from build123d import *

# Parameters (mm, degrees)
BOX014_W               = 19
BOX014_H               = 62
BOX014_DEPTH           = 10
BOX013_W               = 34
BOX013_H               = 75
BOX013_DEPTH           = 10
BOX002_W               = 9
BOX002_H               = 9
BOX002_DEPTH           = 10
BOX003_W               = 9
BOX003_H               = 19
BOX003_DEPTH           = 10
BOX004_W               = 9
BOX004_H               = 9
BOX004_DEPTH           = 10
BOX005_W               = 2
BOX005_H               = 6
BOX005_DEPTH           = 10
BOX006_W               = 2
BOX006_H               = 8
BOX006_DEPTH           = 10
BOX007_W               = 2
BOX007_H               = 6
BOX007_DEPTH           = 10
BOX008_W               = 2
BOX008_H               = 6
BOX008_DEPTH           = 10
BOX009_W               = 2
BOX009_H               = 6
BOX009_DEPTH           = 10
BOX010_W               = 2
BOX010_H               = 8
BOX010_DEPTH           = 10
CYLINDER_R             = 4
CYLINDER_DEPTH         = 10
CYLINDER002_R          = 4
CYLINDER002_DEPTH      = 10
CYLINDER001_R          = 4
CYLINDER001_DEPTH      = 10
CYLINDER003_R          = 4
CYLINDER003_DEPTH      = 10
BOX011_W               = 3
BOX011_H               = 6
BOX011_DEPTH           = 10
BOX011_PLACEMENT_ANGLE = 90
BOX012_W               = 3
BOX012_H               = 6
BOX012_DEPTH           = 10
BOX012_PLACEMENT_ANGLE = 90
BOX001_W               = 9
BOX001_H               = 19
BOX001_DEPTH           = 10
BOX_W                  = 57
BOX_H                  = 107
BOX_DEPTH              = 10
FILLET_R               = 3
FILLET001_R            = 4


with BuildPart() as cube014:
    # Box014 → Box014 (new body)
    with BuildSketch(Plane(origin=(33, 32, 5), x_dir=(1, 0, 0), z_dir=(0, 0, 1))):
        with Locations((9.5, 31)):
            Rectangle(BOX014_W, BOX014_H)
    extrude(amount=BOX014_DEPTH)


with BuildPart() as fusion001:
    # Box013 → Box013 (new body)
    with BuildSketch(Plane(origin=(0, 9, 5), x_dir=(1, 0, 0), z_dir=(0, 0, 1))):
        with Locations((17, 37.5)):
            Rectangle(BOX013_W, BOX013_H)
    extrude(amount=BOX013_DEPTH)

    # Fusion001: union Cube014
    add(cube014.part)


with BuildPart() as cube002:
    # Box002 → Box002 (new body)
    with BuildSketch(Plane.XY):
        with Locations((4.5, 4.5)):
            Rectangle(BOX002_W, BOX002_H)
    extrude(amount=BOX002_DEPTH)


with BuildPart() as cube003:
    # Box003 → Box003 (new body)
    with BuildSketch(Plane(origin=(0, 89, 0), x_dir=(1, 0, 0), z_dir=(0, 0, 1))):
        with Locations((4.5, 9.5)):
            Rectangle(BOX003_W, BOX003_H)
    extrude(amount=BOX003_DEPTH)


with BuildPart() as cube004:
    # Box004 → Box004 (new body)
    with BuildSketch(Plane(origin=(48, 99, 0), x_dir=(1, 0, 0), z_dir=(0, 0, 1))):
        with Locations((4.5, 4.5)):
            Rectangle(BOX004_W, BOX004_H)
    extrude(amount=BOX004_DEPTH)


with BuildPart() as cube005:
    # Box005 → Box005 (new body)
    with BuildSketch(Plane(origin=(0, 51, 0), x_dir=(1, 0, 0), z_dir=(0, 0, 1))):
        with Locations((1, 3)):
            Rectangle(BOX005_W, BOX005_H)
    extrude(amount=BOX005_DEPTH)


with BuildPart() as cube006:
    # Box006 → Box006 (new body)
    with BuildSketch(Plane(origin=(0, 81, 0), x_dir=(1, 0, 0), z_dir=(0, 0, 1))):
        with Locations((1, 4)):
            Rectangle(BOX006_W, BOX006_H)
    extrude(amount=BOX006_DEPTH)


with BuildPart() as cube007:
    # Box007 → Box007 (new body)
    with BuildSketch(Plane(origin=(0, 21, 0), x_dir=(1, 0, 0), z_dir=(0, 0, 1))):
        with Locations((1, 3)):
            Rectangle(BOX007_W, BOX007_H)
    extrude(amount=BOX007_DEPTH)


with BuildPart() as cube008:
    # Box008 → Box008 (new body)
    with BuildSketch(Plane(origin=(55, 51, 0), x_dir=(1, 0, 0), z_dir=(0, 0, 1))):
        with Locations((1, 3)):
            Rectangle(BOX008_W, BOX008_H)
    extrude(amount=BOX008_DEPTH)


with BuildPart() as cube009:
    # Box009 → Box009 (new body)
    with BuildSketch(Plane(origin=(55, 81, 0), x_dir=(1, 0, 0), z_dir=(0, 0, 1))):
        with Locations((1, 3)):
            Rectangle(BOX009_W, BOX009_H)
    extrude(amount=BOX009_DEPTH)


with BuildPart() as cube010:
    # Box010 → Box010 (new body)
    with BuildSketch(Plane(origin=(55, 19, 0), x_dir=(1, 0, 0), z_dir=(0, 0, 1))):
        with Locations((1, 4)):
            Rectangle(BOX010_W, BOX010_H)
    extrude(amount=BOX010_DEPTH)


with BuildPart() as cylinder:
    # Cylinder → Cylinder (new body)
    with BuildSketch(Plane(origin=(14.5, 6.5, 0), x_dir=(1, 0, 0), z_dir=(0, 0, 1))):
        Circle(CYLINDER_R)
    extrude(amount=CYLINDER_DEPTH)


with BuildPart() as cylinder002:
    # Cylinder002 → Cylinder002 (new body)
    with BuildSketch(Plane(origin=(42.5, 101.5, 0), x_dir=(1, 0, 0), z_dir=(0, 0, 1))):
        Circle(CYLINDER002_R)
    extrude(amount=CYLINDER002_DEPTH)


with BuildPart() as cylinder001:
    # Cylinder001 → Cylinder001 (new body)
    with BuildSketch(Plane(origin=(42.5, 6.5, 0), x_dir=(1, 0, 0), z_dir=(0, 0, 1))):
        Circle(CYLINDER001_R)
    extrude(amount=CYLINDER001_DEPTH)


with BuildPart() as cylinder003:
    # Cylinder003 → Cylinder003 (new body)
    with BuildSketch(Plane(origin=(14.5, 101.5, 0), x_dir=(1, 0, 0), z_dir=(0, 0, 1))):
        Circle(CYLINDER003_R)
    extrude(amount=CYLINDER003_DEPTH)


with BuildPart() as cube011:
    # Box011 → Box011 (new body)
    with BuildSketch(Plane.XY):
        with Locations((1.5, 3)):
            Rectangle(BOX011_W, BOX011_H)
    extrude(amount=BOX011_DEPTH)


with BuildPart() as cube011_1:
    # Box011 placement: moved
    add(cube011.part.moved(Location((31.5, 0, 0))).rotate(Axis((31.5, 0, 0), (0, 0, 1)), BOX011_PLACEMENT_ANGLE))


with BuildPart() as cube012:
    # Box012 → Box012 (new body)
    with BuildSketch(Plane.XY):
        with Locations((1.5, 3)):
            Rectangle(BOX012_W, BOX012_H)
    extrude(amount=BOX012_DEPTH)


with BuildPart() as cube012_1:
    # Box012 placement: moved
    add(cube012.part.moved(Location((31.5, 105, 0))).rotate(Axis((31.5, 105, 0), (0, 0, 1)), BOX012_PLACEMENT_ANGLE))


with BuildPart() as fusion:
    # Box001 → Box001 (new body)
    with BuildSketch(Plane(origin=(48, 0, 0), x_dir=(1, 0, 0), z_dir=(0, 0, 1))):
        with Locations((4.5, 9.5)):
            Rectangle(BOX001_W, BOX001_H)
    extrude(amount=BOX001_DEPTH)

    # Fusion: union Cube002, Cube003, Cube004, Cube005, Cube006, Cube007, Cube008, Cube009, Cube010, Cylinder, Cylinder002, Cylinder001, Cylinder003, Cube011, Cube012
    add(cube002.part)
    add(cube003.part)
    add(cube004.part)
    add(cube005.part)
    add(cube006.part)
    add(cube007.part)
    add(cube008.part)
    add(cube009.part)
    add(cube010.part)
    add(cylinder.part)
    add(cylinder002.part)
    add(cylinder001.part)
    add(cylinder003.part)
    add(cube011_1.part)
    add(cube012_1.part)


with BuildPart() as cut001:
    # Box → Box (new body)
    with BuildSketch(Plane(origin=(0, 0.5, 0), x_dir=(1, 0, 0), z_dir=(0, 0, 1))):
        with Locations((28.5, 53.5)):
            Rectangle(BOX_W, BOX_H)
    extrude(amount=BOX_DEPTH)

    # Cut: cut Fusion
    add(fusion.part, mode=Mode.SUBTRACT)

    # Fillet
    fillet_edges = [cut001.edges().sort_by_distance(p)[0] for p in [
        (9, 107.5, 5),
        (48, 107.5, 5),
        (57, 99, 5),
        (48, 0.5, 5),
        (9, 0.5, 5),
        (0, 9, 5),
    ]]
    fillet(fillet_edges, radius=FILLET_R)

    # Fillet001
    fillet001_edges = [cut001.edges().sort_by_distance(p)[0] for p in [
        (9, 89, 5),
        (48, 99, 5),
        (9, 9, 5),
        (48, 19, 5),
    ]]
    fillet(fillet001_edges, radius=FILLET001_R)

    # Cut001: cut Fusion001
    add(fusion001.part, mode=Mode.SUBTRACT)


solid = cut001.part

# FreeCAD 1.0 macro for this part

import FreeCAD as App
import Part
import Sketcher


def edges_at(feature, points):
    """Names of the edges that pass closest to the given points."""
    edges = feature.Shape.Edges
    near = lambda p: min(range(len(edges)), key=lambda i: edges[i].distToShape(Part.Vertex(*p))[0])
    return sorted({f"Edge{near(p) + 1}" for p in points})

doc = App.newDocument("Part")
body = doc.addObject("PartDesign::Body", "Body")

# Sketch on XY plane
sketch1 = doc.addObject("Sketcher::SketchObject", "Sketch")
body.addObject(sketch1)
sketch1.AttachmentSupport = (doc.XY_Plane, [""])
sketch1.MapMode = "FlatFace"
sketch1.AttachmentOffset = App.Placement(App.Vector(0, 0, 5), App.Rotation())
sketch1.addGeometry([
    Part.LineSegment(App.Vector(33, 94, 0), App.Vector(33, 32, 0)),
    Part.LineSegment(App.Vector(33, 32, 0), App.Vector(52, 32, 0)),
    Part.LineSegment(App.Vector(52, 32, 0), App.Vector(52, 94, 0)),
    Part.LineSegment(App.Vector(52, 94, 0), App.Vector(33, 94, 0)),
], False)
sketch1.addConstraint([
    Sketcher.Constraint("Coincident", 0, 2, 1, 1),
    Sketcher.Constraint("Coincident", 1, 2, 2, 1),
    Sketcher.Constraint("Coincident", 2, 2, 3, 1),
    Sketcher.Constraint("Coincident", 3, 2, 0, 1),
    Sketcher.Constraint("Vertical", 0),
    Sketcher.Constraint("Horizontal", 1),
    Sketcher.Constraint("Vertical", 2),
    Sketcher.Constraint("Horizontal", 3),
    Sketcher.Constraint("DistanceX", 1, 1, 1, 2, 19.0),
    Sketcher.Constraint("DistanceY", 0, 2, 0, 1, 62.0),
    Sketcher.Constraint("DistanceX", -1, 1, 0, 2, 33.0),
    Sketcher.Constraint("DistanceY", -1, 1, 0, 2, 32.0),
])
pad1 = doc.addObject("PartDesign::Pad", "Pad")
body.addObject(pad1)
pad1.Profile = sketch1
pad1.Length = 10
body2 = doc.addObject("PartDesign::Body", "Body001")

# Sketch on XY plane
sketch2 = doc.addObject("Sketcher::SketchObject", "Sketch001")
body2.addObject(sketch2)
sketch2.AttachmentSupport = (doc.getObject("XY_Plane001"), [""])
sketch2.MapMode = "FlatFace"
sketch2.AttachmentOffset = App.Placement(App.Vector(0, 0, 5), App.Rotation())
sketch2.addGeometry([
    Part.LineSegment(App.Vector(0, 84, 0), App.Vector(0, 9, 0)),
    Part.LineSegment(App.Vector(0, 9, 0), App.Vector(34, 9, 0)),
    Part.LineSegment(App.Vector(34, 9, 0), App.Vector(34, 84, 0)),
    Part.LineSegment(App.Vector(34, 84, 0), App.Vector(0, 84, 0)),
], False)
sketch2.addConstraint([
    Sketcher.Constraint("Coincident", 0, 2, 1, 1),
    Sketcher.Constraint("Coincident", 1, 2, 2, 1),
    Sketcher.Constraint("Coincident", 2, 2, 3, 1),
    Sketcher.Constraint("Coincident", 3, 2, 0, 1),
    Sketcher.Constraint("Vertical", 0),
    Sketcher.Constraint("Horizontal", 1),
    Sketcher.Constraint("Vertical", 2),
    Sketcher.Constraint("Horizontal", 3),
    Sketcher.Constraint("PointOnObject", 0, 2, -2),
    Sketcher.Constraint("DistanceX", 1, 1, 1, 2, 34.0),
    Sketcher.Constraint("DistanceY", 0, 2, 0, 1, 75.0),
    Sketcher.Constraint("DistanceY", -1, 1, 0, 2, 9.0),
])
pad2 = doc.addObject("PartDesign::Pad", "Pad001")
body2.addObject(pad2)
pad2.Profile = sketch2
pad2.Length = 10
doc.recompute()

boolean = doc.addObject("PartDesign::Boolean", "Boolean")
body2.addObject(boolean)
boolean.Type = "Fuse"
boolean.addObjects([body])
body3 = doc.addObject("PartDesign::Body", "Body002")

# Sketch on XY plane
sketch3 = doc.addObject("Sketcher::SketchObject", "Sketch002")
body3.addObject(sketch3)
sketch3.AttachmentSupport = (doc.getObject("XY_Plane002"), [""])
sketch3.MapMode = "FlatFace"
sketch3.addGeometry([
    Part.LineSegment(App.Vector(0, 9, 0), App.Vector(0, 0, 0)),
    Part.LineSegment(App.Vector(0, 0, 0), App.Vector(9, 0, 0)),
    Part.LineSegment(App.Vector(9, 0, 0), App.Vector(9, 9, 0)),
    Part.LineSegment(App.Vector(9, 9, 0), App.Vector(0, 9, 0)),
], False)
sketch3.addConstraint([
    Sketcher.Constraint("Coincident", 0, 2, 1, 1),
    Sketcher.Constraint("Coincident", 1, 2, 2, 1),
    Sketcher.Constraint("Coincident", 2, 2, 3, 1),
    Sketcher.Constraint("Coincident", 3, 2, 0, 1),
    Sketcher.Constraint("Vertical", 0),
    Sketcher.Constraint("Horizontal", 1),
    Sketcher.Constraint("Vertical", 2),
    Sketcher.Constraint("Horizontal", 3),
    Sketcher.Constraint("Coincident", 0, 2, -1, 1),
    Sketcher.Constraint("Equal", 3, 0),
    Sketcher.Constraint("DistanceX", 1, 1, 1, 2, 9.0),
])
pad3 = doc.addObject("PartDesign::Pad", "Pad002")
body3.addObject(pad3)
pad3.Profile = sketch3
pad3.Length = 10
body4 = doc.addObject("PartDesign::Body", "Body003")

# Sketch on XY plane
sketch4 = doc.addObject("Sketcher::SketchObject", "Sketch003")
body4.addObject(sketch4)
sketch4.AttachmentSupport = (doc.getObject("XY_Plane003"), [""])
sketch4.MapMode = "FlatFace"
sketch4.addGeometry([
    Part.LineSegment(App.Vector(0, 108, 0), App.Vector(0, 89, 0)),
    Part.LineSegment(App.Vector(0, 89, 0), App.Vector(9, 89, 0)),
    Part.LineSegment(App.Vector(9, 89, 0), App.Vector(9, 108, 0)),
    Part.LineSegment(App.Vector(9, 108, 0), App.Vector(0, 108, 0)),
], False)
sketch4.addConstraint([
    Sketcher.Constraint("Coincident", 0, 2, 1, 1),
    Sketcher.Constraint("Coincident", 1, 2, 2, 1),
    Sketcher.Constraint("Coincident", 2, 2, 3, 1),
    Sketcher.Constraint("Coincident", 3, 2, 0, 1),
    Sketcher.Constraint("Vertical", 0),
    Sketcher.Constraint("Horizontal", 1),
    Sketcher.Constraint("Vertical", 2),
    Sketcher.Constraint("Horizontal", 3),
    Sketcher.Constraint("PointOnObject", 0, 2, -2),
    Sketcher.Constraint("DistanceX", 1, 1, 1, 2, 9.0),
    Sketcher.Constraint("DistanceY", 0, 2, 0, 1, 19.0),
    Sketcher.Constraint("DistanceY", -1, 1, 0, 2, 89.0),
])
pad4 = doc.addObject("PartDesign::Pad", "Pad003")
body4.addObject(pad4)
pad4.Profile = sketch4
pad4.Length = 10
body5 = doc.addObject("PartDesign::Body", "Body004")

# Sketch on XY plane
sketch5 = doc.addObject("Sketcher::SketchObject", "Sketch004")
body5.addObject(sketch5)
sketch5.AttachmentSupport = (doc.getObject("XY_Plane004"), [""])
sketch5.MapMode = "FlatFace"
sketch5.addGeometry([
    Part.LineSegment(App.Vector(48, 108, 0), App.Vector(48, 99, 0)),
    Part.LineSegment(App.Vector(48, 99, 0), App.Vector(57, 99, 0)),
    Part.LineSegment(App.Vector(57, 99, 0), App.Vector(57, 108, 0)),
    Part.LineSegment(App.Vector(57, 108, 0), App.Vector(48, 108, 0)),
], False)
sketch5.addConstraint([
    Sketcher.Constraint("Coincident", 0, 2, 1, 1),
    Sketcher.Constraint("Coincident", 1, 2, 2, 1),
    Sketcher.Constraint("Coincident", 2, 2, 3, 1),
    Sketcher.Constraint("Coincident", 3, 2, 0, 1),
    Sketcher.Constraint("Vertical", 0),
    Sketcher.Constraint("Horizontal", 1),
    Sketcher.Constraint("Vertical", 2),
    Sketcher.Constraint("Horizontal", 3),
    Sketcher.Constraint("Equal", 3, 0),
    Sketcher.Constraint("DistanceX", 1, 1, 1, 2, 9.0),
    Sketcher.Constraint("DistanceX", -1, 1, 0, 2, 48.0),
    Sketcher.Constraint("DistanceY", -1, 1, 0, 2, 99.0),
])
pad5 = doc.addObject("PartDesign::Pad", "Pad004")
body5.addObject(pad5)
pad5.Profile = sketch5
pad5.Length = 10
body6 = doc.addObject("PartDesign::Body", "Body005")

# Sketch on XY plane
sketch6 = doc.addObject("Sketcher::SketchObject", "Sketch005")
body6.addObject(sketch6)
sketch6.AttachmentSupport = (doc.getObject("XY_Plane005"), [""])
sketch6.MapMode = "FlatFace"
sketch6.addGeometry([
    Part.LineSegment(App.Vector(0, 57, 0), App.Vector(0, 51, 0)),
    Part.LineSegment(App.Vector(0, 51, 0), App.Vector(2, 51, 0)),
    Part.LineSegment(App.Vector(2, 51, 0), App.Vector(2, 57, 0)),
    Part.LineSegment(App.Vector(2, 57, 0), App.Vector(0, 57, 0)),
], False)
sketch6.addConstraint([
    Sketcher.Constraint("Coincident", 0, 2, 1, 1),
    Sketcher.Constraint("Coincident", 1, 2, 2, 1),
    Sketcher.Constraint("Coincident", 2, 2, 3, 1),
    Sketcher.Constraint("Coincident", 3, 2, 0, 1),
    Sketcher.Constraint("Vertical", 0),
    Sketcher.Constraint("Horizontal", 1),
    Sketcher.Constraint("Vertical", 2),
    Sketcher.Constraint("Horizontal", 3),
    Sketcher.Constraint("PointOnObject", 0, 2, -2),
    Sketcher.Constraint("DistanceX", 1, 1, 1, 2, 2.0),
    Sketcher.Constraint("DistanceY", 0, 2, 0, 1, 6.0),
    Sketcher.Constraint("DistanceY", -1, 1, 0, 2, 51.0),
])
pad6 = doc.addObject("PartDesign::Pad", "Pad005")
body6.addObject(pad6)
pad6.Profile = sketch6
pad6.Length = 10
body7 = doc.addObject("PartDesign::Body", "Body006")

# Sketch on XY plane
sketch7 = doc.addObject("Sketcher::SketchObject", "Sketch006")
body7.addObject(sketch7)
sketch7.AttachmentSupport = (doc.getObject("XY_Plane006"), [""])
sketch7.MapMode = "FlatFace"
sketch7.addGeometry([
    Part.LineSegment(App.Vector(0, 89, 0), App.Vector(0, 81, 0)),
    Part.LineSegment(App.Vector(0, 81, 0), App.Vector(2, 81, 0)),
    Part.LineSegment(App.Vector(2, 81, 0), App.Vector(2, 89, 0)),
    Part.LineSegment(App.Vector(2, 89, 0), App.Vector(0, 89, 0)),
], False)
sketch7.addConstraint([
    Sketcher.Constraint("Coincident", 0, 2, 1, 1),
    Sketcher.Constraint("Coincident", 1, 2, 2, 1),
    Sketcher.Constraint("Coincident", 2, 2, 3, 1),
    Sketcher.Constraint("Coincident", 3, 2, 0, 1),
    Sketcher.Constraint("Vertical", 0),
    Sketcher.Constraint("Horizontal", 1),
    Sketcher.Constraint("Vertical", 2),
    Sketcher.Constraint("Horizontal", 3),
    Sketcher.Constraint("PointOnObject", 0, 2, -2),
    Sketcher.Constraint("DistanceX", 1, 1, 1, 2, 2.0),
    Sketcher.Constraint("DistanceY", 0, 2, 0, 1, 8.0),
    Sketcher.Constraint("DistanceY", -1, 1, 0, 2, 81.0),
])
pad7 = doc.addObject("PartDesign::Pad", "Pad006")
body7.addObject(pad7)
pad7.Profile = sketch7
pad7.Length = 10
body8 = doc.addObject("PartDesign::Body", "Body007")

# Sketch on XY plane
sketch8 = doc.addObject("Sketcher::SketchObject", "Sketch007")
body8.addObject(sketch8)
sketch8.AttachmentSupport = (doc.getObject("XY_Plane007"), [""])
sketch8.MapMode = "FlatFace"
sketch8.addGeometry([
    Part.LineSegment(App.Vector(0, 27, 0), App.Vector(0, 21, 0)),
    Part.LineSegment(App.Vector(0, 21, 0), App.Vector(2, 21, 0)),
    Part.LineSegment(App.Vector(2, 21, 0), App.Vector(2, 27, 0)),
    Part.LineSegment(App.Vector(2, 27, 0), App.Vector(0, 27, 0)),
], False)
sketch8.addConstraint([
    Sketcher.Constraint("Coincident", 0, 2, 1, 1),
    Sketcher.Constraint("Coincident", 1, 2, 2, 1),
    Sketcher.Constraint("Coincident", 2, 2, 3, 1),
    Sketcher.Constraint("Coincident", 3, 2, 0, 1),
    Sketcher.Constraint("Vertical", 0),
    Sketcher.Constraint("Horizontal", 1),
    Sketcher.Constraint("Vertical", 2),
    Sketcher.Constraint("Horizontal", 3),
    Sketcher.Constraint("PointOnObject", 0, 2, -2),
    Sketcher.Constraint("DistanceX", 1, 1, 1, 2, 2.0),
    Sketcher.Constraint("DistanceY", 0, 2, 0, 1, 6.0),
    Sketcher.Constraint("DistanceY", -1, 1, 0, 2, 21.0),
])
pad8 = doc.addObject("PartDesign::Pad", "Pad007")
body8.addObject(pad8)
pad8.Profile = sketch8
pad8.Length = 10
body9 = doc.addObject("PartDesign::Body", "Body008")

# Sketch on XY plane
sketch9 = doc.addObject("Sketcher::SketchObject", "Sketch008")
body9.addObject(sketch9)
sketch9.AttachmentSupport = (doc.getObject("XY_Plane008"), [""])
sketch9.MapMode = "FlatFace"
sketch9.addGeometry([
    Part.LineSegment(App.Vector(55, 57, 0), App.Vector(55, 51, 0)),
    Part.LineSegment(App.Vector(55, 51, 0), App.Vector(57, 51, 0)),
    Part.LineSegment(App.Vector(57, 51, 0), App.Vector(57, 57, 0)),
    Part.LineSegment(App.Vector(57, 57, 0), App.Vector(55, 57, 0)),
], False)
sketch9.addConstraint([
    Sketcher.Constraint("Coincident", 0, 2, 1, 1),
    Sketcher.Constraint("Coincident", 1, 2, 2, 1),
    Sketcher.Constraint("Coincident", 2, 2, 3, 1),
    Sketcher.Constraint("Coincident", 3, 2, 0, 1),
    Sketcher.Constraint("Vertical", 0),
    Sketcher.Constraint("Horizontal", 1),
    Sketcher.Constraint("Vertical", 2),
    Sketcher.Constraint("Horizontal", 3),
    Sketcher.Constraint("DistanceX", 1, 1, 1, 2, 2.0),
    Sketcher.Constraint("DistanceY", 0, 2, 0, 1, 6.0),
    Sketcher.Constraint("DistanceX", -1, 1, 0, 2, 55.0),
    Sketcher.Constraint("DistanceY", -1, 1, 0, 2, 51.0),
])
pad9 = doc.addObject("PartDesign::Pad", "Pad008")
body9.addObject(pad9)
pad9.Profile = sketch9
pad9.Length = 10
body10 = doc.addObject("PartDesign::Body", "Body009")

# Sketch on XY plane
sketch10 = doc.addObject("Sketcher::SketchObject", "Sketch009")
body10.addObject(sketch10)
sketch10.AttachmentSupport = (doc.getObject("XY_Plane009"), [""])
sketch10.MapMode = "FlatFace"
sketch10.addGeometry([
    Part.LineSegment(App.Vector(55, 87, 0), App.Vector(55, 81, 0)),
    Part.LineSegment(App.Vector(55, 81, 0), App.Vector(57, 81, 0)),
    Part.LineSegment(App.Vector(57, 81, 0), App.Vector(57, 87, 0)),
    Part.LineSegment(App.Vector(57, 87, 0), App.Vector(55, 87, 0)),
], False)
sketch10.addConstraint([
    Sketcher.Constraint("Coincident", 0, 2, 1, 1),
    Sketcher.Constraint("Coincident", 1, 2, 2, 1),
    Sketcher.Constraint("Coincident", 2, 2, 3, 1),
    Sketcher.Constraint("Coincident", 3, 2, 0, 1),
    Sketcher.Constraint("Vertical", 0),
    Sketcher.Constraint("Horizontal", 1),
    Sketcher.Constraint("Vertical", 2),
    Sketcher.Constraint("Horizontal", 3),
    Sketcher.Constraint("DistanceX", 1, 1, 1, 2, 2.0),
    Sketcher.Constraint("DistanceY", 0, 2, 0, 1, 6.0),
    Sketcher.Constraint("DistanceX", -1, 1, 0, 2, 55.0),
    Sketcher.Constraint("DistanceY", -1, 1, 0, 2, 81.0),
])
pad10 = doc.addObject("PartDesign::Pad", "Pad009")
body10.addObject(pad10)
pad10.Profile = sketch10
pad10.Length = 10
body11 = doc.addObject("PartDesign::Body", "Body010")

# Sketch on XY plane
sketch11 = doc.addObject("Sketcher::SketchObject", "Sketch010")
body11.addObject(sketch11)
sketch11.AttachmentSupport = (doc.getObject("XY_Plane010"), [""])
sketch11.MapMode = "FlatFace"
sketch11.addGeometry([
    Part.LineSegment(App.Vector(55, 27, 0), App.Vector(55, 19, 0)),
    Part.LineSegment(App.Vector(55, 19, 0), App.Vector(57, 19, 0)),
    Part.LineSegment(App.Vector(57, 19, 0), App.Vector(57, 27, 0)),
    Part.LineSegment(App.Vector(57, 27, 0), App.Vector(55, 27, 0)),
], False)
sketch11.addConstraint([
    Sketcher.Constraint("Coincident", 0, 2, 1, 1),
    Sketcher.Constraint("Coincident", 1, 2, 2, 1),
    Sketcher.Constraint("Coincident", 2, 2, 3, 1),
    Sketcher.Constraint("Coincident", 3, 2, 0, 1),
    Sketcher.Constraint("Vertical", 0),
    Sketcher.Constraint("Horizontal", 1),
    Sketcher.Constraint("Vertical", 2),
    Sketcher.Constraint("Horizontal", 3),
    Sketcher.Constraint("DistanceX", 1, 1, 1, 2, 2.0),
    Sketcher.Constraint("DistanceY", 0, 2, 0, 1, 8.0),
    Sketcher.Constraint("DistanceX", -1, 1, 0, 2, 55.0),
    Sketcher.Constraint("DistanceY", -1, 1, 0, 2, 19.0),
])
pad11 = doc.addObject("PartDesign::Pad", "Pad010")
body11.addObject(pad11)
pad11.Profile = sketch11
pad11.Length = 10
body12 = doc.addObject("PartDesign::Body", "Body011")

# Sketch on XY plane
sketch12 = doc.addObject("Sketcher::SketchObject", "Sketch011")
body12.addObject(sketch12)
sketch12.AttachmentSupport = (doc.getObject("XY_Plane011"), [""])
sketch12.MapMode = "FlatFace"
sketch12.addGeometry(Part.Circle(App.Vector(14.5, 6.5, 0), App.Vector(0, 0, 1), 4), False)
sketch12.addConstraint([
    Sketcher.Constraint("Diameter", 0, 8.0),
    Sketcher.Constraint("DistanceX", -1, 1, 0, 3, 14.5),
    Sketcher.Constraint("DistanceY", -1, 1, 0, 3, 6.5),
])
pad12 = doc.addObject("PartDesign::Pad", "Pad011")
body12.addObject(pad12)
pad12.Profile = sketch12
pad12.Length = 10
body13 = doc.addObject("PartDesign::Body", "Body012")

# Sketch on XY plane
sketch13 = doc.addObject("Sketcher::SketchObject", "Sketch012")
body13.addObject(sketch13)
sketch13.AttachmentSupport = (doc.getObject("XY_Plane012"), [""])
sketch13.MapMode = "FlatFace"
sketch13.addGeometry(Part.Circle(App.Vector(42.5, 101.5, 0), App.Vector(0, 0, 1), 4), False)
sketch13.addConstraint([
    Sketcher.Constraint("Diameter", 0, 8.0),
    Sketcher.Constraint("DistanceX", -1, 1, 0, 3, 42.5),
    Sketcher.Constraint("DistanceY", -1, 1, 0, 3, 101.5),
])
pad13 = doc.addObject("PartDesign::Pad", "Pad012")
body13.addObject(pad13)
pad13.Profile = sketch13
pad13.Length = 10
body14 = doc.addObject("PartDesign::Body", "Body013")

# Sketch on XY plane
sketch14 = doc.addObject("Sketcher::SketchObject", "Sketch013")
body14.addObject(sketch14)
sketch14.AttachmentSupport = (doc.getObject("XY_Plane013"), [""])
sketch14.MapMode = "FlatFace"
sketch14.addGeometry(Part.Circle(App.Vector(42.5, 6.5, 0), App.Vector(0, 0, 1), 4), False)
sketch14.addConstraint([
    Sketcher.Constraint("Diameter", 0, 8.0),
    Sketcher.Constraint("DistanceX", -1, 1, 0, 3, 42.5),
    Sketcher.Constraint("DistanceY", -1, 1, 0, 3, 6.5),
])
pad14 = doc.addObject("PartDesign::Pad", "Pad013")
body14.addObject(pad14)
pad14.Profile = sketch14
pad14.Length = 10
body15 = doc.addObject("PartDesign::Body", "Body014")

# Sketch on XY plane
sketch15 = doc.addObject("Sketcher::SketchObject", "Sketch014")
body15.addObject(sketch15)
sketch15.AttachmentSupport = (doc.getObject("XY_Plane014"), [""])
sketch15.MapMode = "FlatFace"
sketch15.addGeometry(Part.Circle(App.Vector(14.5, 101.5, 0), App.Vector(0, 0, 1), 4), False)
sketch15.addConstraint([
    Sketcher.Constraint("Diameter", 0, 8.0),
    Sketcher.Constraint("DistanceX", -1, 1, 0, 3, 14.5),
    Sketcher.Constraint("DistanceY", -1, 1, 0, 3, 101.5),
])
pad15 = doc.addObject("PartDesign::Pad", "Pad014")
body15.addObject(pad15)
pad15.Profile = sketch15
pad15.Length = 10
body16 = doc.addObject("PartDesign::Body", "Body015")

# Sketch on XY plane
sketch16 = doc.addObject("Sketcher::SketchObject", "Sketch015")
body16.addObject(sketch16)
sketch16.AttachmentSupport = (doc.getObject("XY_Plane015"), [""])
sketch16.MapMode = "FlatFace"
sketch16.addGeometry([
    Part.LineSegment(App.Vector(0, 6, 0), App.Vector(0, 0, 0)),
    Part.LineSegment(App.Vector(0, 0, 0), App.Vector(3, 0, 0)),
    Part.LineSegment(App.Vector(3, 0, 0), App.Vector(3, 6, 0)),
    Part.LineSegment(App.Vector(3, 6, 0), App.Vector(0, 6, 0)),
], False)
sketch16.addConstraint([
    Sketcher.Constraint("Coincident", 0, 2, 1, 1),
    Sketcher.Constraint("Coincident", 1, 2, 2, 1),
    Sketcher.Constraint("Coincident", 2, 2, 3, 1),
    Sketcher.Constraint("Coincident", 3, 2, 0, 1),
    Sketcher.Constraint("Vertical", 0),
    Sketcher.Constraint("Horizontal", 1),
    Sketcher.Constraint("Vertical", 2),
    Sketcher.Constraint("Horizontal", 3),
    Sketcher.Constraint("Coincident", 0, 2, -1, 1),
    Sketcher.Constraint("DistanceX", 1, 1, 1, 2, 3.0),
    Sketcher.Constraint("DistanceY", 0, 2, 0, 1, 6.0),
])
pad16 = doc.addObject("PartDesign::Pad", "Pad015")
body16.addObject(pad16)
pad16.Profile = sketch16
pad16.Length = 10
body17 = doc.addObject("PartDesign::Body", "Body016")
doc.recompute()

body16.Placement = App.Placement(App.Vector(31.5, 0, 0), App.Rotation(App.Vector(0, 0, 1), 90))
boolean2 = doc.addObject("PartDesign::Boolean", "Boolean001")
body17.addObject(boolean2)
boolean2.Type = "Fuse"
boolean2.addObjects([body16])
body18 = doc.addObject("PartDesign::Body", "Body017")

# Sketch on XY plane
sketch17 = doc.addObject("Sketcher::SketchObject", "Sketch016")
body18.addObject(sketch17)
sketch17.AttachmentSupport = (doc.getObject("XY_Plane017"), [""])
sketch17.MapMode = "FlatFace"
sketch17.addGeometry([
    Part.LineSegment(App.Vector(0, 6, 0), App.Vector(0, 0, 0)),
    Part.LineSegment(App.Vector(0, 0, 0), App.Vector(3, 0, 0)),
    Part.LineSegment(App.Vector(3, 0, 0), App.Vector(3, 6, 0)),
    Part.LineSegment(App.Vector(3, 6, 0), App.Vector(0, 6, 0)),
], False)
sketch17.addConstraint([
    Sketcher.Constraint("Coincident", 0, 2, 1, 1),
    Sketcher.Constraint("Coincident", 1, 2, 2, 1),
    Sketcher.Constraint("Coincident", 2, 2, 3, 1),
    Sketcher.Constraint("Coincident", 3, 2, 0, 1),
    Sketcher.Constraint("Vertical", 0),
    Sketcher.Constraint("Horizontal", 1),
    Sketcher.Constraint("Vertical", 2),
    Sketcher.Constraint("Horizontal", 3),
    Sketcher.Constraint("Coincident", 0, 2, -1, 1),
    Sketcher.Constraint("DistanceX", 1, 1, 1, 2, 3.0),
    Sketcher.Constraint("DistanceY", 0, 2, 0, 1, 6.0),
])
pad17 = doc.addObject("PartDesign::Pad", "Pad016")
body18.addObject(pad17)
pad17.Profile = sketch17
pad17.Length = 10
body19 = doc.addObject("PartDesign::Body", "Body018")
doc.recompute()

body18.Placement = App.Placement(App.Vector(31.5, 105, 0), App.Rotation(App.Vector(0, 0, 1), 90))
boolean3 = doc.addObject("PartDesign::Boolean", "Boolean002")
body19.addObject(boolean3)
boolean3.Type = "Fuse"
boolean3.addObjects([body18])
body20 = doc.addObject("PartDesign::Body", "Body019")
body20.AllowCompound = True

# Sketch on XY plane
sketch18 = doc.addObject("Sketcher::SketchObject", "Sketch017")
body20.addObject(sketch18)
sketch18.AttachmentSupport = (doc.getObject("XY_Plane019"), [""])
sketch18.MapMode = "FlatFace"
sketch18.addGeometry([
    Part.LineSegment(App.Vector(48, 19, 0), App.Vector(48, 0, 0)),
    Part.LineSegment(App.Vector(48, 0, 0), App.Vector(57, 0, 0)),
    Part.LineSegment(App.Vector(57, 0, 0), App.Vector(57, 19, 0)),
    Part.LineSegment(App.Vector(57, 19, 0), App.Vector(48, 19, 0)),
], False)
sketch18.addConstraint([
    Sketcher.Constraint("Coincident", 0, 2, 1, 1),
    Sketcher.Constraint("Coincident", 1, 2, 2, 1),
    Sketcher.Constraint("Coincident", 2, 2, 3, 1),
    Sketcher.Constraint("Coincident", 3, 2, 0, 1),
    Sketcher.Constraint("Vertical", 0),
    Sketcher.Constraint("Horizontal", 1),
    Sketcher.Constraint("Vertical", 2),
    Sketcher.Constraint("Horizontal", 3),
    Sketcher.Constraint("PointOnObject", 0, 2, -1),
    Sketcher.Constraint("DistanceX", 1, 1, 1, 2, 9.0),
    Sketcher.Constraint("DistanceY", 0, 2, 0, 1, 19.0),
    Sketcher.Constraint("DistanceX", -1, 1, 0, 2, 48.0),
])
pad18 = doc.addObject("PartDesign::Pad", "Pad017")
body20.addObject(pad18)
pad18.Profile = sketch18
pad18.Length = 10
doc.recompute()

boolean4 = doc.addObject("PartDesign::Boolean", "Boolean003")
body20.addObject(boolean4)
boolean4.Type = "Fuse"
boolean4.addObjects([body3])
doc.recompute()

boolean5 = doc.addObject("PartDesign::Boolean", "Boolean004")
body20.addObject(boolean5)
boolean5.Type = "Fuse"
boolean5.addObjects([body4])
doc.recompute()

boolean6 = doc.addObject("PartDesign::Boolean", "Boolean005")
body20.addObject(boolean6)
boolean6.Type = "Fuse"
boolean6.addObjects([body5])
doc.recompute()

boolean7 = doc.addObject("PartDesign::Boolean", "Boolean006")
body20.addObject(boolean7)
boolean7.Type = "Fuse"
boolean7.addObjects([body6])
doc.recompute()

boolean8 = doc.addObject("PartDesign::Boolean", "Boolean007")
body20.addObject(boolean8)
boolean8.Type = "Fuse"
boolean8.addObjects([body7])
doc.recompute()

boolean9 = doc.addObject("PartDesign::Boolean", "Boolean008")
body20.addObject(boolean9)
boolean9.Type = "Fuse"
boolean9.addObjects([body8])
doc.recompute()

boolean10 = doc.addObject("PartDesign::Boolean", "Boolean009")
body20.addObject(boolean10)
boolean10.Type = "Fuse"
boolean10.addObjects([body9])
doc.recompute()

boolean11 = doc.addObject("PartDesign::Boolean", "Boolean010")
body20.addObject(boolean11)
boolean11.Type = "Fuse"
boolean11.addObjects([body10])
doc.recompute()

boolean12 = doc.addObject("PartDesign::Boolean", "Boolean011")
body20.addObject(boolean12)
boolean12.Type = "Fuse"
boolean12.addObjects([body11])
doc.recompute()

boolean13 = doc.addObject("PartDesign::Boolean", "Boolean012")
body20.addObject(boolean13)
boolean13.Type = "Fuse"
boolean13.addObjects([body12])
doc.recompute()

boolean14 = doc.addObject("PartDesign::Boolean", "Boolean013")
body20.addObject(boolean14)
boolean14.Type = "Fuse"
boolean14.addObjects([body13])
doc.recompute()

boolean15 = doc.addObject("PartDesign::Boolean", "Boolean014")
body20.addObject(boolean15)
boolean15.Type = "Fuse"
boolean15.addObjects([body14])
doc.recompute()

boolean16 = doc.addObject("PartDesign::Boolean", "Boolean015")
body20.addObject(boolean16)
boolean16.Type = "Fuse"
boolean16.addObjects([body15])
doc.recompute()

boolean17 = doc.addObject("PartDesign::Boolean", "Boolean016")
body20.addObject(boolean17)
boolean17.Type = "Fuse"
boolean17.addObjects([body17])
doc.recompute()

boolean18 = doc.addObject("PartDesign::Boolean", "Boolean017")
body20.addObject(boolean18)
boolean18.Type = "Fuse"
boolean18.addObjects([body19])
body21 = doc.addObject("PartDesign::Body", "Body020")

# Sketch on XY plane
sketch19 = doc.addObject("Sketcher::SketchObject", "Sketch018")
body21.addObject(sketch19)
sketch19.AttachmentSupport = (doc.getObject("XY_Plane020"), [""])
sketch19.MapMode = "FlatFace"
sketch19.addGeometry([
    Part.LineSegment(App.Vector(0, 108, 0), App.Vector(0, 0, 0)),
    Part.LineSegment(App.Vector(0, 0, 0), App.Vector(57, 0, 0)),
    Part.LineSegment(App.Vector(57, 0, 0), App.Vector(57, 108, 0)),
    Part.LineSegment(App.Vector(57, 108, 0), App.Vector(0, 108, 0)),
], False)
sketch19.addConstraint([
    Sketcher.Constraint("Coincident", 0, 2, 1, 1),
    Sketcher.Constraint("Coincident", 1, 2, 2, 1),
    Sketcher.Constraint("Coincident", 2, 2, 3, 1),
    Sketcher.Constraint("Coincident", 3, 2, 0, 1),
    Sketcher.Constraint("Vertical", 0),
    Sketcher.Constraint("Horizontal", 1),
    Sketcher.Constraint("Vertical", 2),
    Sketcher.Constraint("Horizontal", 3),
    Sketcher.Constraint("PointOnObject", 0, 2, -2),
    Sketcher.Constraint("DistanceX", 1, 1, 1, 2, 57.0),
    Sketcher.Constraint("DistanceY", 0, 2, 0, 1, 107.0),
    Sketcher.Constraint("DistanceY", -1, 1, 0, 2, 0.5),
])
pad19 = doc.addObject("PartDesign::Pad", "Pad018")
body21.addObject(pad19)
pad19.Profile = sketch19
pad19.Length = 10
doc.recompute()

boolean19 = doc.addObject("PartDesign::Boolean", "Boolean018")
body21.addObject(boolean19)
boolean19.Type = "Cut"
boolean19.addObjects([body20])
doc.recompute()

fillet = doc.addObject("PartDesign::Fillet", "Fillet")
body21.addObject(fillet)
fillet.Base = (boolean19, edges_at(boolean19, [
    (9, 107.5, 5),
    (48, 107.5, 5),
    (57, 99, 5),
    (48, 0.5, 5),
    (9, 0.5, 5),
    (0, 9, 5),
]))
fillet.Radius = 3
doc.recompute()

fillet2 = doc.addObject("PartDesign::Fillet", "Fillet001")
body21.addObject(fillet2)
fillet2.Base = (fillet, edges_at(fillet, [
    (9, 89, 5),
    (48, 99, 5),
    (9, 9, 5),
    (48, 19, 5),
]))
fillet2.Radius = 4
doc.recompute()

boolean20 = doc.addObject("PartDesign::Boolean", "Boolean019")
body21.addObject(boolean20)
boolean20.Type = "Cut"
boolean20.addObjects([body2])

doc.recompute()
